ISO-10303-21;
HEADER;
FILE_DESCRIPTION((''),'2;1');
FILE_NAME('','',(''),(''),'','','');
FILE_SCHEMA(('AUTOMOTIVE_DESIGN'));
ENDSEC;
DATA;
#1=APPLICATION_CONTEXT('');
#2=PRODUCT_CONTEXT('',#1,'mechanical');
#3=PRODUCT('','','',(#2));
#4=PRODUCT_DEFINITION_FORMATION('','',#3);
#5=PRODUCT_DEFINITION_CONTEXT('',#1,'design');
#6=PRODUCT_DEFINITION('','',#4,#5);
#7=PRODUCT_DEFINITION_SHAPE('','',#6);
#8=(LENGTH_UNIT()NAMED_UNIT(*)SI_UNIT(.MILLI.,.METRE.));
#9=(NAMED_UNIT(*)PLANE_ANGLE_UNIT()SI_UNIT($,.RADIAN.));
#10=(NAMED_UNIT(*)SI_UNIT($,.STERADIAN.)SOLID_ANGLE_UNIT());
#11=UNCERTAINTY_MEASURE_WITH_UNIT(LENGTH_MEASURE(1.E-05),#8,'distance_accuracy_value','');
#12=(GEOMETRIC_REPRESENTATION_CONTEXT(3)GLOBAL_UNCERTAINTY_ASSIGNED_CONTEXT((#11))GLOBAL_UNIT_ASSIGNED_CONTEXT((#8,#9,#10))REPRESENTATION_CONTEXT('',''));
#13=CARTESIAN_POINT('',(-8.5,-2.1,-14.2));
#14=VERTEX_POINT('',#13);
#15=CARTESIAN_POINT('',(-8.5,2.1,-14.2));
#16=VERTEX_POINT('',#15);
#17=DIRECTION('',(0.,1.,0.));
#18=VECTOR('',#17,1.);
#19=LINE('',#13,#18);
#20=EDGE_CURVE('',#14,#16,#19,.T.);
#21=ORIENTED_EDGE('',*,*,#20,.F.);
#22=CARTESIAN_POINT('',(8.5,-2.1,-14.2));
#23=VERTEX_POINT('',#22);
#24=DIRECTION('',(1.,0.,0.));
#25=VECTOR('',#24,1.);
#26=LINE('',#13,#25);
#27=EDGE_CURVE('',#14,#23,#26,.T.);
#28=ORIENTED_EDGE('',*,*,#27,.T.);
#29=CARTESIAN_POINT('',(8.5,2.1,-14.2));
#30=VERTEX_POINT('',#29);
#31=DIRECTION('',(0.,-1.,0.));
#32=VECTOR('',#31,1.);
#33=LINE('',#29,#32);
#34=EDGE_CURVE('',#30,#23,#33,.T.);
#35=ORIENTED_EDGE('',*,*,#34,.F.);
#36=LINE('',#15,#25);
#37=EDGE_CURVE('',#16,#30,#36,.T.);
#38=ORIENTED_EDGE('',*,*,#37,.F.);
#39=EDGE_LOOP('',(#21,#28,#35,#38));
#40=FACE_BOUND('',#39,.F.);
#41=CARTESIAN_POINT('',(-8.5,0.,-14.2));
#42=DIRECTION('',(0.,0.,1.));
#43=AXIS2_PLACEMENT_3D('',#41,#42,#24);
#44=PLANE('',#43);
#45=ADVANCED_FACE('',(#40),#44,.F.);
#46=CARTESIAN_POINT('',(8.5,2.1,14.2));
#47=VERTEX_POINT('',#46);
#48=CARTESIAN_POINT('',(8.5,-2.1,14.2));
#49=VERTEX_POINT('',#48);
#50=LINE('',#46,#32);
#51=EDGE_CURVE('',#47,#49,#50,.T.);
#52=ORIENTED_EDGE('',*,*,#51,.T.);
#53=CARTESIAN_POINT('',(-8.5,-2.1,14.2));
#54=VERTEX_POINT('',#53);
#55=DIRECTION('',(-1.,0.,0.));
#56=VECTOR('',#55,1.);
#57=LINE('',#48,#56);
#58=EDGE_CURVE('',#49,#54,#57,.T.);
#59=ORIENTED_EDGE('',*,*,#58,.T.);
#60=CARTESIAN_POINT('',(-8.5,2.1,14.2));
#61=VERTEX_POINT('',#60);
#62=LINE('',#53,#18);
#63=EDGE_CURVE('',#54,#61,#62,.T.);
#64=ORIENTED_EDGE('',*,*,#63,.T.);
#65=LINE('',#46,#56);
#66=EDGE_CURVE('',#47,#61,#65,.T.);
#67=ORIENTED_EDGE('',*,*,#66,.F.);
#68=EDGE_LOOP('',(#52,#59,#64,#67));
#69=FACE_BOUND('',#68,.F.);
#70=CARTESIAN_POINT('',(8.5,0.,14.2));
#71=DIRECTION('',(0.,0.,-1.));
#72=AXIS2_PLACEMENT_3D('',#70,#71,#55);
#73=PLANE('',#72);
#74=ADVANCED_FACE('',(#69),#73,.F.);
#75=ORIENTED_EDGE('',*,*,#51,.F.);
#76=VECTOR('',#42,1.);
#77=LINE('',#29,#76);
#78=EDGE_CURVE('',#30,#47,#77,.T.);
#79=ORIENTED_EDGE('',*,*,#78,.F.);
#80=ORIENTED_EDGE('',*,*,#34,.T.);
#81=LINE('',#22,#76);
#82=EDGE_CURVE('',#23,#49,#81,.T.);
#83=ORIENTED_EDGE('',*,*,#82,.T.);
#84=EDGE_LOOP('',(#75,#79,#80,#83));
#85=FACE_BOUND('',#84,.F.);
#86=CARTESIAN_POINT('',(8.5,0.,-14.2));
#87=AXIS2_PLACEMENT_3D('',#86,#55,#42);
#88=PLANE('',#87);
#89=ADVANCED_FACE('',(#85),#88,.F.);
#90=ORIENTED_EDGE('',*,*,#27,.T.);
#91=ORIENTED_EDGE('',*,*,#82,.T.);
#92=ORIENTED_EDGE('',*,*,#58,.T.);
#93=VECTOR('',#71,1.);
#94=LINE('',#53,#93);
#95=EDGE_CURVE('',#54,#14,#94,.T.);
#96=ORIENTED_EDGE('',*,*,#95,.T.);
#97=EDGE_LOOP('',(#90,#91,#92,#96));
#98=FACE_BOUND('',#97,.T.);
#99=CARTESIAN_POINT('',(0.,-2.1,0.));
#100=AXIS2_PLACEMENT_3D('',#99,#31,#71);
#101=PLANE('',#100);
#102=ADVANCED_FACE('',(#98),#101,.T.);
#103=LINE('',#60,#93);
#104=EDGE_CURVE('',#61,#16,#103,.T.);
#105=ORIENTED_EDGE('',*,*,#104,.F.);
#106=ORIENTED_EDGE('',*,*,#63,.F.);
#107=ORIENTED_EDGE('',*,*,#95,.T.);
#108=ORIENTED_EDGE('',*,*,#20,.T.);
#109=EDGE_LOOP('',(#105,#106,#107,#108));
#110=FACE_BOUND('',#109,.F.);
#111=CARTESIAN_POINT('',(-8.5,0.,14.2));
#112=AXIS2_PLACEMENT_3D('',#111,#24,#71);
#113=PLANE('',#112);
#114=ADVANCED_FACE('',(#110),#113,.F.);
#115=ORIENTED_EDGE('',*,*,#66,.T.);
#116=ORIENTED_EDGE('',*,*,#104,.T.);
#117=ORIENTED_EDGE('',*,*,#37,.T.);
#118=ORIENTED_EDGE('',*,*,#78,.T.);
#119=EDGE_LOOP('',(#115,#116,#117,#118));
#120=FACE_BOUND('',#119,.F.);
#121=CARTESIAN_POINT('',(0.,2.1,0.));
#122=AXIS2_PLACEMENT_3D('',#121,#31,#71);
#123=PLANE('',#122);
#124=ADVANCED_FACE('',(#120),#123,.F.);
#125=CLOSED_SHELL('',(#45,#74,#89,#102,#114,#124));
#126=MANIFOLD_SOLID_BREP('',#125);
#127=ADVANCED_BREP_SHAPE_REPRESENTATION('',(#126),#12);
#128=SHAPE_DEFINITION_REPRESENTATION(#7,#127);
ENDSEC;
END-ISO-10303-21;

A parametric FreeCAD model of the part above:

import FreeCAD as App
import Part
import Sketcher
from FreeCAD import Vector
Q = App.Units.Quantity

doc = App.newDocument("Part")
params = doc.addObject("Spreadsheet::Sheet", "Params")
for row, (alias, value) in enumerate([
    ("sketch1_width", "17 mm"),
    ("sketch1_height", "28.4 mm"),
    ("pad1_length", "4.2 mm"),
], start=1):
    params.set(f"A{row}", alias)
    params.set(f"B{row}", "=" + value)
    params.setAlias(f"B{row}", alias)

body = doc.addObject("PartDesign::Body", "Body")

# Sketch on XZ plane
sketch1 = body.newObject("Sketcher::SketchObject", "Sketch")
sketch1.AttachmentSupport = (doc.getObject("XZ_Plane"), [""])
sketch1.MapMode = "FlatFace"
sketch1.addGeometry([
    Part.LineSegment(Vector(-8, 14, 0), Vector(-8, -14, 0)),
    Part.LineSegment(Vector(-8, -14, 0), Vector(8, -14, 0)),
    Part.LineSegment(Vector(8, -14, 0), Vector(8, 14, 0)),
    Part.LineSegment(Vector(8, 14, 0), Vector(-8, 14, 0)),
], False)
sketch1.addConstraint([
    Sketcher.Constraint("Coincident", 0, 2, 1, 1),
    Sketcher.Constraint("Coincident", 1, 2, 2, 1),
    Sketcher.Constraint("Coincident", 2, 2, 3, 1),
    Sketcher.Constraint("Coincident", 3, 2, 0, 1),
    Sketcher.Constraint("Vertical", 0),
    Sketcher.Constraint("Horizontal", 1),
    Sketcher.Constraint("Vertical", 2),
    Sketcher.Constraint("Horizontal", 3),
    Sketcher.Constraint("Symmetric", 0, 2, 2, 2, -1, 1),
    Sketcher.Constraint("DistanceX", 1, 1, 1, 2, Q("17 mm")),
    Sketcher.Constraint("DistanceY", 0, 2, 0, 1, Q("28.4 mm")),
])
sketch1.setExpression("Constraints[9]", "Params.sketch1_width")
sketch1.setExpression("Constraints[10]", "Params.sketch1_height")
pad1 = body.newObject("PartDesign::Pad", "Pad")
pad1.Profile = sketch1
pad1.setExpression("Length", "Params.pad1_length")
pad1.Midplane = True

doc.recompute()
